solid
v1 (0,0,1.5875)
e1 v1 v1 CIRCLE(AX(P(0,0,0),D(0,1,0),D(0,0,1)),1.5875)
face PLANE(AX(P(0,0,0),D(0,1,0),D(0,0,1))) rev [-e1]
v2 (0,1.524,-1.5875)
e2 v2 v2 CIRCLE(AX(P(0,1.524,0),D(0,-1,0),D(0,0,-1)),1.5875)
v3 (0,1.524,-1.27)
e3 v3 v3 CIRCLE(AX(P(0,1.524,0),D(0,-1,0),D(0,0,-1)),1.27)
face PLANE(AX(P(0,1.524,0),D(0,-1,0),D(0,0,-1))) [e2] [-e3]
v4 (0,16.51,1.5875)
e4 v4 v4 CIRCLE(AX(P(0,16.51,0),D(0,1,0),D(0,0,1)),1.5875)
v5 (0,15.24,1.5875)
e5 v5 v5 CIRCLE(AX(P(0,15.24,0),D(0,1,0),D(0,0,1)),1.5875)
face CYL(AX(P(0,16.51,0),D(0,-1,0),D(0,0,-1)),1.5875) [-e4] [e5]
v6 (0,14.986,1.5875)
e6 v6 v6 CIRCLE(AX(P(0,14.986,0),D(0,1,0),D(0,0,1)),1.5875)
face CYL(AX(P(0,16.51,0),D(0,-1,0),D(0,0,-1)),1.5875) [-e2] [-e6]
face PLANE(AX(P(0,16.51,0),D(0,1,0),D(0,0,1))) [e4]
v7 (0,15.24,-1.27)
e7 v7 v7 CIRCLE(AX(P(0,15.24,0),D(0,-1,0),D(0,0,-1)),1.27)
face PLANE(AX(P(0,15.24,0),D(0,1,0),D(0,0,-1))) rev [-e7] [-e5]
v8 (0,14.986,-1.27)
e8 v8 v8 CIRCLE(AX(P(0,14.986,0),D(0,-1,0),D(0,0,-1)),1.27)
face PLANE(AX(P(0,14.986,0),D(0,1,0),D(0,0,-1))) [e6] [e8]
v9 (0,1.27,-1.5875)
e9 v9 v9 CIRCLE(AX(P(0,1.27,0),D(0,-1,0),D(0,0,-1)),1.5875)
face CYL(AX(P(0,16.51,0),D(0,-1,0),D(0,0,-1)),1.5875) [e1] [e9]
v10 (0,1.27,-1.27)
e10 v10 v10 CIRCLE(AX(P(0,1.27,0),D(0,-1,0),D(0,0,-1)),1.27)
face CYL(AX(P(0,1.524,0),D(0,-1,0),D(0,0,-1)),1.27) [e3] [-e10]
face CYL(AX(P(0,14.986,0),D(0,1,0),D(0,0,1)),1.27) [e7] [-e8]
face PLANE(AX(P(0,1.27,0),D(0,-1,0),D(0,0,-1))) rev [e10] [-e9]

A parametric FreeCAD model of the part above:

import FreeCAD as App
import Part
import Sketcher
from FreeCAD import Vector
Q = App.Units.Quantity

doc = App.newDocument("Part")
body = doc.addObject("PartDesign::Body", "Body")

sketch1 = doc.addObject("Sketcher::SketchObject", "Sketch")
body.addObject(sketch1)
sketch1.AttachmentSupport = (doc.XZ_Plane, [""])
sketch1.MapMode = "FlatFace"
sketch1.addGeometry(Part.Circle(Vector(0, 0, 0), Vector(0, 0, 1), 1.6), False)
sketch1.addConstraint([
    Sketcher.Constraint("Coincident", 0, 3, -1, 1),
    Sketcher.Constraint("Diameter", 0, Q("0.125 in")),
])
pad1 = doc.addObject("PartDesign::Pad", "Pad")
body.addObject(pad1)
pad1.Profile = sketch1
pad1.Length = Q("0.65 in")
pad1.Reversed = True

sketch2 = doc.addObject("Sketcher::SketchObject", "Sketch001")
body.addObject(sketch2)
sketch2.AttachmentSupport = (doc.XZ_Plane, [""])
sketch2.MapMode = "FlatFace"
sketch2.AttachmentOffset = App.Placement(Vector(0, 0, -0.05 * 25.4), App.Rotation())
sketch2.addGeometry([
    Part.Circle(Vector(0, 0, 0), Vector(0, 0, 1), 1.9),
    Part.Circle(Vector(0, 0, 0), Vector(0, 0, 1), 1.3),
], False)
sketch2.addConstraint([
    Sketcher.Constraint("Coincident", 0, 3, -1, 1),
    Sketcher.Constraint("Coincident", 1, 3, -1, 1),
    Sketcher.Constraint("Diameter", 1, Q("0.1 in")),
    Sketcher.Constraint("Diameter", 0, Q("3.806689 mm")),
])
pocket1 = doc.addObject("PartDesign::Pocket", "Pocket")
body.addObject(pocket1)
pocket1.Profile = sketch2
pocket1.Length = Q("0.01 in")
doc.recompute()

datumplane = doc.addObject("PartDesign::Plane", "DatumPlane")
body.addObject(datumplane)
datumplane.AttachmentSupport = (doc.XZ_Plane, [""])
datumplane.MapMode = "FlatFace"
datumplane.AttachmentOffset = App.Placement(Vector(0, 0, -0.325 * 25.4), App.Rotation())
mirrored = doc.addObject("PartDesign::Mirrored", "Mirrored")
body.addObject(mirrored)
mirrored.Originals = [pocket1]
mirrored.MirrorPlane = (datumplane, [""])
body.Tip = mirrored

doc.recompute()
